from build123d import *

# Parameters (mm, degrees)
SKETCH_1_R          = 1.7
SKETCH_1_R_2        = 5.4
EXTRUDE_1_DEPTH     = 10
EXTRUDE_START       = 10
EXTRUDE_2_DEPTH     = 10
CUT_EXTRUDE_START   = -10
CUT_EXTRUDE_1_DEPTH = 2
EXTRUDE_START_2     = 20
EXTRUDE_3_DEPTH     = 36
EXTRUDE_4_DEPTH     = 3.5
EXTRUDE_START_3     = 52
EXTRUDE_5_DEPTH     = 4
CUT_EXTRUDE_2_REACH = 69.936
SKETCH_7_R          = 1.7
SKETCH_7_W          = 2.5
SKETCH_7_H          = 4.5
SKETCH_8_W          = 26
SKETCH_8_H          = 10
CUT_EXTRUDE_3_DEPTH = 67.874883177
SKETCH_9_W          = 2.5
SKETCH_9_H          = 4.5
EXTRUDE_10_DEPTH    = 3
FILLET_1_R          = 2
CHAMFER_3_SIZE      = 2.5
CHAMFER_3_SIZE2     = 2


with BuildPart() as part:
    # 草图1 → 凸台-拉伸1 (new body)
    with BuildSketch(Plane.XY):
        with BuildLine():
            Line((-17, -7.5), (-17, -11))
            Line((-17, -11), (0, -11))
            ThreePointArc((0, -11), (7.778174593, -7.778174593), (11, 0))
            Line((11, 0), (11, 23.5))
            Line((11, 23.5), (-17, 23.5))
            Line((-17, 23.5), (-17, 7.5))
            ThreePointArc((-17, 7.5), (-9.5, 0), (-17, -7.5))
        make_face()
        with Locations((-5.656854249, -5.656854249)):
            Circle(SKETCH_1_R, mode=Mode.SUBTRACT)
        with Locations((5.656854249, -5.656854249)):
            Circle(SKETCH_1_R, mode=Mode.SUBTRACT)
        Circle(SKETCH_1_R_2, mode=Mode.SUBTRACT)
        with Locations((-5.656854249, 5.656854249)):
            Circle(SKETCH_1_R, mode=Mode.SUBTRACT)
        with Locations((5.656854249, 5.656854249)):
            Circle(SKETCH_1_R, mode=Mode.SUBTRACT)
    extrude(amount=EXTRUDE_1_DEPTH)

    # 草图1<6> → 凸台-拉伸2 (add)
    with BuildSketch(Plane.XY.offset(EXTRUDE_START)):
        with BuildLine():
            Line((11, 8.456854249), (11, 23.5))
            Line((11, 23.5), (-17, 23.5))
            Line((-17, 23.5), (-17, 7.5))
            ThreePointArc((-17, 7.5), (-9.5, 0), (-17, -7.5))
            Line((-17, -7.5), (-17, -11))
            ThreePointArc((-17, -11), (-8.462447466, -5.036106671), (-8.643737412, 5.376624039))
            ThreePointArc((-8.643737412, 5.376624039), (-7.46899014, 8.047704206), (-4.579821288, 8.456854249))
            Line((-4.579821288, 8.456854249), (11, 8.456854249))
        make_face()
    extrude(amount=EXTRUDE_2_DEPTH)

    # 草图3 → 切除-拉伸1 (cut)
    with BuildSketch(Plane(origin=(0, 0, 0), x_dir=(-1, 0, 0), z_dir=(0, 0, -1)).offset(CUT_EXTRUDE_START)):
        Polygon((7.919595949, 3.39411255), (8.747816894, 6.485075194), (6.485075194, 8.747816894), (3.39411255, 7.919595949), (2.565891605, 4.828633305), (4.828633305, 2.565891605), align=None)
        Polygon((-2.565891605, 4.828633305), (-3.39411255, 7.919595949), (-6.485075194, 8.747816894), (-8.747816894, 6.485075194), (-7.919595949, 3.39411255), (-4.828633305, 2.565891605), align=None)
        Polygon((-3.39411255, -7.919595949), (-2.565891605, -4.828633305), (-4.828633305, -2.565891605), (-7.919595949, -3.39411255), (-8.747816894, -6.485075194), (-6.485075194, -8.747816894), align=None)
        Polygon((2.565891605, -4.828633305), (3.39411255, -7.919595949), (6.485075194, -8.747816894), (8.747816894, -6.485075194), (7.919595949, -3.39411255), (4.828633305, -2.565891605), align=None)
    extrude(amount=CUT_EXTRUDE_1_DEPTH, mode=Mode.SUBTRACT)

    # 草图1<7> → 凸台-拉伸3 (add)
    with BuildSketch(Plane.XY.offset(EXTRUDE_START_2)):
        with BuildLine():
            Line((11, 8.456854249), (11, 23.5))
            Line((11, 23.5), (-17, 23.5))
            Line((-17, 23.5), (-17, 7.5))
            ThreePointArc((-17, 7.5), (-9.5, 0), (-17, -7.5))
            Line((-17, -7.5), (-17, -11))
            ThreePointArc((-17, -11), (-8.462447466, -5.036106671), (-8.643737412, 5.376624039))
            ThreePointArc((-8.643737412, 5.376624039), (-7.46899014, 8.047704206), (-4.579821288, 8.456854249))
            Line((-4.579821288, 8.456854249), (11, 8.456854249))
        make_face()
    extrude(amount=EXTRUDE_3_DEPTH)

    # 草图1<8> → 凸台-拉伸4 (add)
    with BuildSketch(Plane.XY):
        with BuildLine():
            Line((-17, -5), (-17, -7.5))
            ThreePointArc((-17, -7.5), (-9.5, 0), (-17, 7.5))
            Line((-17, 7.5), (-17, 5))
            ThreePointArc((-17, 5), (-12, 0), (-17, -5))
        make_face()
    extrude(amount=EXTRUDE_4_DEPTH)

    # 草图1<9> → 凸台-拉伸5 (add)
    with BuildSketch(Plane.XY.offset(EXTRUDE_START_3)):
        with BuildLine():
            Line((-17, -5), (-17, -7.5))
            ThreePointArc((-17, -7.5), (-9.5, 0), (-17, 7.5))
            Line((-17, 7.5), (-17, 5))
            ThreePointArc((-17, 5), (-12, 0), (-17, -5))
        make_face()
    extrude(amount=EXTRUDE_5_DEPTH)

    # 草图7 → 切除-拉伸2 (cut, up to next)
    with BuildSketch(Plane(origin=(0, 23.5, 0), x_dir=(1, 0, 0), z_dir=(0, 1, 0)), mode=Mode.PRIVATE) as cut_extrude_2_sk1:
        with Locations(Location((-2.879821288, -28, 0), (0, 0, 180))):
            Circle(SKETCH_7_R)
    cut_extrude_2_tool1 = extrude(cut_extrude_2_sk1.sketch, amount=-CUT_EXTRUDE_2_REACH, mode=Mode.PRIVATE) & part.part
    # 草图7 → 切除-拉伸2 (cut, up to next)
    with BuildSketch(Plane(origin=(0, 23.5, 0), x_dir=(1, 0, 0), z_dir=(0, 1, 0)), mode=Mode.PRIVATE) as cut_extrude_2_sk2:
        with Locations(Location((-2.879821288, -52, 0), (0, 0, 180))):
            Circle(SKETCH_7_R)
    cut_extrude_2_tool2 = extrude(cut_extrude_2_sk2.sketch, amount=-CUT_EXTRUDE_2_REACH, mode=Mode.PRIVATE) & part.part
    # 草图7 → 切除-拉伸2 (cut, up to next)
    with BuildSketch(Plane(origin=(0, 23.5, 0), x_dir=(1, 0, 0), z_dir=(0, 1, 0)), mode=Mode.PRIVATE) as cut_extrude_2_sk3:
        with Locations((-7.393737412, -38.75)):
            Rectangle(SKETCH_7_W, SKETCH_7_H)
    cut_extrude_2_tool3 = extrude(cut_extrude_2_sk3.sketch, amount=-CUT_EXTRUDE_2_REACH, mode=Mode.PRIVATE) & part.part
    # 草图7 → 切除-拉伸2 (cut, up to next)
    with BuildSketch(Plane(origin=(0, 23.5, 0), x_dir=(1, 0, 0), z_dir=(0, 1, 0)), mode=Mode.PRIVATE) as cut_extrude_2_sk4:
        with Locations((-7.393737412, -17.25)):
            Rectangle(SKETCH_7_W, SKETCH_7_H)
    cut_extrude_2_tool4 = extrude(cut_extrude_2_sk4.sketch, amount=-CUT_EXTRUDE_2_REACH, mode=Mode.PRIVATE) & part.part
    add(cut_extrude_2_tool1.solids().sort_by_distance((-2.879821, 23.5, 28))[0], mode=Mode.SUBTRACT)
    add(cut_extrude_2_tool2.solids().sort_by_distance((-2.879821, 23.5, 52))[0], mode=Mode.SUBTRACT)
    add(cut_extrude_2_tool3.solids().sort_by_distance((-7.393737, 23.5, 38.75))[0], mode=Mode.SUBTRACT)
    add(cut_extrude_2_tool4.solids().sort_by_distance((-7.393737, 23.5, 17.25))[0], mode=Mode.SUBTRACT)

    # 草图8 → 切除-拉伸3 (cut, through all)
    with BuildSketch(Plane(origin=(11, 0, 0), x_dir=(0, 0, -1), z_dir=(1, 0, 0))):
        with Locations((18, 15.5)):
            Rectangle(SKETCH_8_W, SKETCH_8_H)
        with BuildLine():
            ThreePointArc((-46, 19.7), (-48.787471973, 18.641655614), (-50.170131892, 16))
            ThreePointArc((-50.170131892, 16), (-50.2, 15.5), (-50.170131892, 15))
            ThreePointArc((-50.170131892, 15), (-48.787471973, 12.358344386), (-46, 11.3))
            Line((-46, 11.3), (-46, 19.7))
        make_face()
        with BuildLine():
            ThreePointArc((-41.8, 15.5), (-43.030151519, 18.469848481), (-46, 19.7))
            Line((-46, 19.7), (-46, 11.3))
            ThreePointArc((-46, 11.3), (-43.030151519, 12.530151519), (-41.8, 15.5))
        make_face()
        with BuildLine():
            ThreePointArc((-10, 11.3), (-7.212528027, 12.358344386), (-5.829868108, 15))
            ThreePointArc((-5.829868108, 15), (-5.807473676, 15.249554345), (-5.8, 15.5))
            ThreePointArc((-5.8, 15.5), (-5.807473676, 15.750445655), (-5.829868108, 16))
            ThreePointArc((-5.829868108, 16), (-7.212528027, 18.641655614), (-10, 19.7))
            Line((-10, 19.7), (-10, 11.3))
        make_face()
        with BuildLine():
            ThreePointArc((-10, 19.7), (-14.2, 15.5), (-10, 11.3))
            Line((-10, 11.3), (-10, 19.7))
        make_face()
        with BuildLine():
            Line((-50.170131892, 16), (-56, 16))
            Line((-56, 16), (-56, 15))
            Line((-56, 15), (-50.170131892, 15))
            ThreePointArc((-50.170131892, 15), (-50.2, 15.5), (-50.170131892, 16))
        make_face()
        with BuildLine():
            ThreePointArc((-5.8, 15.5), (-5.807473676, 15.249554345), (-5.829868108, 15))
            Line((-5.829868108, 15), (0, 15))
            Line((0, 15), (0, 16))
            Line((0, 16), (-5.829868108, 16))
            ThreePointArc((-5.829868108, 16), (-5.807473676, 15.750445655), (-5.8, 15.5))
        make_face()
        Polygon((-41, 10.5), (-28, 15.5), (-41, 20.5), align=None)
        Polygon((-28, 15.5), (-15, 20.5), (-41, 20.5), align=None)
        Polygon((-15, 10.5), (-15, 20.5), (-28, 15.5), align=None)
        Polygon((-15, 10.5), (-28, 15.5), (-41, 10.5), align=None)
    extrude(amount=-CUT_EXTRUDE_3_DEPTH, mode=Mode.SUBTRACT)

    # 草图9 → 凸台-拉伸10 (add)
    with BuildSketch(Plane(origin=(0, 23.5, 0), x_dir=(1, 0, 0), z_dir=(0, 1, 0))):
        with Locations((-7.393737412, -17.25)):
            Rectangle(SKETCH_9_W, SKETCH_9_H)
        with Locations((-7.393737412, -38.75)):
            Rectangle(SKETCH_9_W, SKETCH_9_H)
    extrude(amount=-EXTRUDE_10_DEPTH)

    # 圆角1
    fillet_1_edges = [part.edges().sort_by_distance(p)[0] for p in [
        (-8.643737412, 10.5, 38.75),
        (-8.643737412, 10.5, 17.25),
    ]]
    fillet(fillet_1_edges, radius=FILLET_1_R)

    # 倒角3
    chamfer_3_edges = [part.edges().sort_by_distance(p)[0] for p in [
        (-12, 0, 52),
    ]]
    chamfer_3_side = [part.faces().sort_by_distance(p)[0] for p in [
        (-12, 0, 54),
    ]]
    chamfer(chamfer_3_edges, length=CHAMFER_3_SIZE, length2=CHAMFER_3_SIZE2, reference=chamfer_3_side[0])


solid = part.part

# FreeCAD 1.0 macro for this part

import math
import FreeCAD as App
import Part
import Sketcher
from FreeCAD import Vector
Q = App.Units.Quantity


def edges_at(feature, points):
    """Names of the edges that pass closest to the given points."""
    edges = feature.Shape.Edges
    near = lambda p: min(range(len(edges)), key=lambda i: edges[i].distToShape(Part.Vertex(*p))[0])
    return sorted({f"Edge{near(p) + 1}" for p in points})

doc = App.newDocument("Part")
body = doc.addObject("PartDesign::Body", "Body")

# Sketch on XY plane
sketch1 = doc.addObject("Sketcher::SketchObject", "Sketch")
body.addObject(sketch1)
sketch1.AttachmentSupport = (doc.XY_Plane, [""])
sketch1.MapMode = "FlatFace"
sketch1.addGeometry([
    Part.LineSegment(Vector(-17, -7.5, 0), Vector(-17, -11, 0)),  # 0
    Part.LineSegment(Vector(-17, -11, 0), Vector(0, -11, 0)),  # 1
    Part.ArcOfCircle(Part.Circle(Vector(0, 0, 0), Vector(0, 0, 1), 11), math.radians(-90), math.radians(0)),  # 2
    Part.LineSegment(Vector(11, 0, 0), Vector(11, 23.5, 0)),  # 3
    Part.LineSegment(Vector(11, 23.5, 0), Vector(-17, 23.5, 0)),  # 4
    Part.LineSegment(Vector(-17, 23.5, 0), Vector(-17, 7.5, 0)),  # 5
    Part.ArcOfCircle(Part.Circle(Vector(-17, 0, 0), Vector(0, 0, 1), 7.5), math.radians(-90), math.radians(90)),  # 6
    Part.Circle(Vector(-5.7, -5.7, 0), Vector(0, 0, 1), 1.7),  # 7
    Part.Circle(Vector(5.7, -5.7, 0), Vector(0, 0, 1), 1.7),  # 8
    Part.Circle(Vector(0, 0, 0), Vector(0, 0, 1), 5.4),  # 9
    Part.Circle(Vector(-5.7, 5.7, 0), Vector(0, 0, 1), 1.7),  # 10
    Part.Circle(Vector(5.7, 5.7, 0), Vector(0, 0, 1), 1.7),  # 11
], False)
sketch1.addConstraint([
    Sketcher.Constraint("Coincident", 0, 2, 1, 1),
    Sketcher.Constraint("Tangent", 1, 2, 2, 1),
    Sketcher.Constraint("Tangent", 2, 2, 3, 1),
    Sketcher.Constraint("Coincident", 3, 2, 4, 1),
    Sketcher.Constraint("Coincident", 4, 2, 5, 1),
    Sketcher.Constraint("Coincident", 5, 2, 6, 2),
    Sketcher.Constraint("Coincident", 6, 1, 0, 1),
    Sketcher.Constraint("Vertical", 0),
    Sketcher.Constraint("Horizontal", 1),
    Sketcher.Constraint("Vertical", 3),
    Sketcher.Constraint("Horizontal", 4),
    Sketcher.Constraint("Vertical", 5),
    Sketcher.Constraint("Coincident", 2, 3, -1, 1),
    Sketcher.Constraint("Coincident", 9, 3, -1, 1),
    Sketcher.Constraint("Equal", 7, 8),
    Sketcher.Constraint("Equal", 8, 10),
    Sketcher.Constraint("Equal", 10, 11),
    Sketcher.Constraint("Symmetric", 8, 3, 10, 3, -1, 1),
    Sketcher.Constraint("Symmetric", 7, 3, 11, 3, -1, 1),
    Sketcher.Constraint("Symmetric", 7, 3, 8, 3, -2),
    Sketcher.Constraint("Symmetric", 5, 2, 6, 1, -1),
    Sketcher.Constraint("Vertical", 6, 3, 0, 2),
    Sketcher.Constraint("Radius", 2, Q("11 mm")),
    Sketcher.Constraint("Diameter", 7, Q("3.4 mm")),
    Sketcher.Constraint("Diameter", 9, Q("10.8 mm")),
    Sketcher.Constraint("Radius", 6, Q("7.5 mm")),
    Sketcher.Constraint("DistanceX", 1, 1, 1, 2, Q("17 mm")),
    Sketcher.Constraint("DistanceY", 5, 2, 5, 1, Q("16 mm")),
    Sketcher.Constraint("DistanceX", 7, 3, 8, 3, Q("11.313708 mm")),
    Sketcher.Constraint("DistanceY", 7, 3, 10, 3, Q("11.313708 mm")),
])
pad1 = doc.addObject("PartDesign::Pad", "Pad")
body.addObject(pad1)
pad1.Profile = sketch1
pad1.Length = 10

# Sketch on XY plane
sketch2 = doc.addObject("Sketcher::SketchObject", "Sketch001")
body.addObject(sketch2)
sketch2.AttachmentSupport = (doc.XY_Plane, [""])
sketch2.MapMode = "FlatFace"
sketch2.AttachmentOffset = App.Placement(Vector(0, 0, 10), App.Rotation())
sketch2.addGeometry([
    Part.LineSegment(Vector(11, 8.5, 0), Vector(11, 23.5, 0)),  # 0
    Part.LineSegment(Vector(11, 23.5, 0), Vector(-17, 23.5, 0)),  # 1
    Part.LineSegment(Vector(-17, 23.5, 0), Vector(-17, 7.5, 0)),  # 2
    Part.ArcOfCircle(Part.Circle(Vector(-17, 0, 0), Vector(0, 0, 1), 7.5), math.radians(-90), math.radians(90)),  # 3
    Part.LineSegment(Vector(-17, -7.5, 0), Vector(-17, -11, 0)),  # 4
    Part.ArcOfCircle(Part.Circle(Vector(-18.3, 0, 0), Vector(0, 0, 1), 11.1), math.radians(-83), math.radians(29)),  # 5
    Part.ArcOfCircle(Part.Circle(Vector(-5.7, 5.7, 0), Vector(0, 0, 1), 3), math.radians(69), math.radians(185)),  # 6
    Part.LineSegment(Vector(-4.6, 8.5, 0), Vector(11, 8.5, 0)),  # 7
], False)
sketch2.addConstraint([
    Sketcher.Constraint("Coincident", 0, 2, 1, 1),
    Sketcher.Constraint("Coincident", 1, 2, 2, 1),
    Sketcher.Constraint("Coincident", 2, 2, 3, 2),
    Sketcher.Constraint("Coincident", 3, 1, 4, 1),
    Sketcher.Constraint("Coincident", 4, 2, 5, 1),
    Sketcher.Constraint("Coincident", 5, 2, 6, 2),
    Sketcher.Constraint("Coincident", 6, 1, 7, 1),
    Sketcher.Constraint("Coincident", 7, 2, 0, 1),
    Sketcher.Constraint("Vertical", 0),
    Sketcher.Constraint("Horizontal", 1),
    Sketcher.Constraint("Vertical", 2),
    Sketcher.Constraint("Vertical", 4),
    Sketcher.Constraint("Horizontal", 7),
    Sketcher.Constraint("Symmetric", 2, 2, 3, 1, -1),
    Sketcher.Constraint("PointOnObject", 5, 3, -1),
    Sketcher.Constraint("Vertical", 3, 3, 1, 2),
    Sketcher.Constraint("Radius", 6, Q("3 mm")),
    Sketcher.Constraint("Radius", 3, Q("7.5 mm")),
    Sketcher.Constraint("DistanceX", 1, 2, 1, 1, Q("28 mm")),
    Sketcher.Constraint("DistanceY", 2, 2, 2, 1, Q("16 mm")),
    Sketcher.Constraint("DistanceY", 4, 2, 4, 1, Q("3.5 mm")),
    Sketcher.Constraint("DistanceX", 3, 3, -1, 1, Q("17 mm")),
    Sketcher.Constraint("DistanceY", 6, 3, 6, 1, Q("2.8 mm")),
    Sketcher.Constraint("Radius", 5, Q("11.08038 mm")),
    Sketcher.Constraint("DistanceX", 7, 1, 7, 2, Q("15.579821 mm")),
    Sketcher.Constraint("DistanceY", 0, 1, 0, 2, Q("15.043146 mm")),
])
pad2 = doc.addObject("PartDesign::Pad", "Pad001")
body.addObject(pad2)
pad2.Profile = sketch2
pad2.Length = 10

# Sketch on XY plane
sketch3 = doc.addObject("Sketcher::SketchObject", "Sketch002")
body.addObject(sketch3)
sketch3.AttachmentSupport = (doc.XY_Plane, [""])
sketch3.MapMode = "FlatFace"
sketch3.AttachmentOffset = App.Placement(Vector(0, 0, 10), App.Rotation())
sketch3.addGeometry([
    Part.LineSegment(Vector(-7.9, 3.4, 0), Vector(-8.7, 6.5, 0)),  # 0
    Part.LineSegment(Vector(-8.7, 6.5, 0), Vector(-6.5, 8.7, 0)),  # 1
    Part.LineSegment(Vector(-6.5, 8.7, 0), Vector(-3.4, 7.9, 0)),  # 2
    Part.LineSegment(Vector(-3.4, 7.9, 0), Vector(-2.6, 4.8, 0)),  # 3
    Part.LineSegment(Vector(-2.6, 4.8, 0), Vector(-4.8, 2.6, 0)),  # 4
    Part.LineSegment(Vector(-4.8, 2.6, 0), Vector(-7.9, 3.4, 0)),  # 5
    Part.LineSegment(Vector(2.6, 4.8, 0), Vector(3.4, 7.9, 0)),  # 6
    Part.LineSegment(Vector(3.4, 7.9, 0), Vector(6.5, 8.7, 0)),  # 7
    Part.LineSegment(Vector(6.5, 8.7, 0), Vector(8.7, 6.5, 0)),  # 8
    Part.LineSegment(Vector(8.7, 6.5, 0), Vector(7.9, 3.4, 0)),  # 9
    Part.LineSegment(Vector(7.9, 3.4, 0), Vector(4.8, 2.6, 0)),  # 10
    Part.LineSegment(Vector(4.8, 2.6, 0), Vector(2.6, 4.8, 0)),  # 11
    Part.LineSegment(Vector(3.4, -7.9, 0), Vector(2.6, -4.8, 0)),  # 12
    Part.LineSegment(Vector(2.6, -4.8, 0), Vector(4.8, -2.6, 0)),  # 13
    Part.LineSegment(Vector(4.8, -2.6, 0), Vector(7.9, -3.4, 0)),  # 14
    Part.LineSegment(Vector(7.9, -3.4, 0), Vector(8.7, -6.5, 0)),  # 15
    Part.LineSegment(Vector(8.7, -6.5, 0), Vector(6.5, -8.7, 0)),  # 16
    Part.LineSegment(Vector(6.5, -8.7, 0), Vector(3.4, -7.9, 0)),  # 17
    Part.LineSegment(Vector(-2.6, -4.8, 0), Vector(-3.4, -7.9, 0)),  # 18
    Part.LineSegment(Vector(-3.4, -7.9, 0), Vector(-6.5, -8.7, 0)),  # 19
    Part.LineSegment(Vector(-6.5, -8.7, 0), Vector(-8.7, -6.5, 0)),  # 20
    Part.LineSegment(Vector(-8.7, -6.5, 0), Vector(-7.9, -3.4, 0)),  # 21
    Part.LineSegment(Vector(-7.9, -3.4, 0), Vector(-4.8, -2.6, 0)),  # 22
    Part.LineSegment(Vector(-4.8, -2.6, 0), Vector(-2.6, -4.8, 0)),  # 23
], False)
sketch3.addConstraint([
    Sketcher.Constraint("Coincident", 0, 2, 1, 1),
    Sketcher.Constraint("Coincident", 1, 2, 2, 1),
    Sketcher.Constraint("Coincident", 2, 2, 3, 1),
    Sketcher.Constraint("Coincident", 3, 2, 4, 1),
    Sketcher.Constraint("Coincident", 4, 2, 5, 1),
    Sketcher.Constraint("Coincident", 5, 2, 0, 1),
    Sketcher.Constraint("Coincident", 6, 2, 7, 1),
    Sketcher.Constraint("Coincident", 7, 2, 8, 1),
    Sketcher.Constraint("Coincident", 8, 2, 9, 1),
    Sketcher.Constraint("Coincident", 9, 2, 10, 1),
    Sketcher.Constraint("Coincident", 10, 2, 11, 1),
    Sketcher.Constraint("Coincident", 11, 2, 6, 1),
    Sketcher.Constraint("Coincident", 12, 2, 13, 1),
    Sketcher.Constraint("Coincident", 13, 2, 14, 1),
    Sketcher.Constraint("Coincident", 14, 2, 15, 1),
    Sketcher.Constraint("Coincident", 15, 2, 16, 1),
    Sketcher.Constraint("Coincident", 16, 2, 17, 1),
    Sketcher.Constraint("Coincident", 17, 2, 12, 1),
    Sketcher.Constraint("Coincident", 18, 2, 19, 1),
    Sketcher.Constraint("Coincident", 19, 2, 20, 1),
    Sketcher.Constraint("Coincident", 20, 2, 21, 1),
    Sketcher.Constraint("Coincident", 21, 2, 22, 1),
    Sketcher.Constraint("Coincident", 22, 2, 23, 1),
    Sketcher.Constraint("Coincident", 23, 2, 18, 1),
    Sketcher.Constraint("Symmetric", 3, 2, 12, 2, -1, 1),
    Sketcher.Constraint("Symmetric", 4, 2, 13, 2, -1, 1),
    Sketcher.Constraint("Symmetric", 5, 2, 14, 2, -1, 1),
    Sketcher.Constraint("Symmetric", 0, 2, 15, 2, -1, 1),
    Sketcher.Constraint("Symmetric", 1, 2, 16, 2, -1, 1),
    Sketcher.Constraint("Symmetric", 2, 2, 17, 2, -1, 1),
    Sketcher.Constraint("Symmetric", 6, 2, 18, 2, -1, 1),
    Sketcher.Constraint("Symmetric", 7, 2, 19, 2, -1, 1),
    Sketcher.Constraint("Symmetric", 8, 2, 20, 2, -1, 1),
    Sketcher.Constraint("Symmetric", 9, 2, 21, 2, -1, 1),
    Sketcher.Constraint("Symmetric", 10, 2, 22, 2, -1, 1),
    Sketcher.Constraint("Symmetric", 11, 2, 23, 2, -1, 1),
    Sketcher.Constraint("Symmetric", 2, 2, 6, 2, -2),
    Sketcher.Constraint("Symmetric", 1, 2, 7, 2, -2),
    Sketcher.Constraint("Symmetric", 0, 2, 8, 2, -2),
    Sketcher.Constraint("Symmetric", 5, 2, 9, 2, -2),
    Sketcher.Constraint("Symmetric", 4, 2, 10, 2, -2),
    Sketcher.Constraint("Symmetric", 3, 2, 11, 2, -2),
    Sketcher.Constraint("Parallel", 0, 3),
    Sketcher.Constraint("Parallel", 1, 4),
    Sketcher.Constraint("Parallel", 2, 5),
    Sketcher.Constraint("Perpendicular", 5, 6),
    Sketcher.Constraint("Perpendicular", 4, 8),
    Sketcher.Constraint("Equal", 0, 1),
    Sketcher.Constraint("Equal", 1, 2),
    Sketcher.Constraint("Equal", 2, 3),
    Sketcher.Constraint("Angle", 0, Q("105 deg")),
    Sketcher.Constraint("Distance", 0, Q("3.2 mm")),
    Sketcher.Constraint("DistanceX", 3, 2, -1, 1, Q("2.565892 mm")),
    Sketcher.Constraint("DistanceY", -1, 1, 4, 2, Q("2.565892 mm")),
])
pocket1 = doc.addObject("PartDesign::Pocket", "Pocket")
body.addObject(pocket1)
pocket1.Profile = sketch3
pocket1.Length = 2

# Sketch on XY plane
sketch4 = doc.addObject("Sketcher::SketchObject", "Sketch003")
body.addObject(sketch4)
sketch4.AttachmentSupport = (doc.XY_Plane, [""])
sketch4.MapMode = "FlatFace"
sketch4.AttachmentOffset = App.Placement(Vector(0, 0, 20), App.Rotation())
sketch4.addGeometry([
    Part.LineSegment(Vector(11, 8.5, 0), Vector(11, 23.5, 0)),  # 0
    Part.LineSegment(Vector(11, 23.5, 0), Vector(-17, 23.5, 0)),  # 1
    Part.LineSegment(Vector(-17, 23.5, 0), Vector(-17, 7.5, 0)),  # 2
    Part.ArcOfCircle(Part.Circle(Vector(-17, 0, 0), Vector(0, 0, 1), 7.5), math.radians(-90), math.radians(90)),  # 3
    Part.LineSegment(Vector(-17, -7.5, 0), Vector(-17, -11, 0)),  # 4
    Part.ArcOfCircle(Part.Circle(Vector(-18.3, 0, 0), Vector(0, 0, 1), 11.1), math.radians(-83), math.radians(29)),  # 5
    Part.ArcOfCircle(Part.Circle(Vector(-5.7, 5.7, 0), Vector(0, 0, 1), 3), math.radians(69), math.radians(185)),  # 6
    Part.LineSegment(Vector(-4.6, 8.5, 0), Vector(11, 8.5, 0)),  # 7
], False)
sketch4.addConstraint([
    Sketcher.Constraint("Coincident", 0, 2, 1, 1),
    Sketcher.Constraint("Coincident", 1, 2, 2, 1),
    Sketcher.Constraint("Coincident", 2, 2, 3, 2),
    Sketcher.Constraint("Coincident", 3, 1, 4, 1),
    Sketcher.Constraint("Coincident", 4, 2, 5, 1),
    Sketcher.Constraint("Coincident", 5, 2, 6, 2),
    Sketcher.Constraint("Coincident", 6, 1, 7, 1),
    Sketcher.Constraint("Coincident", 7, 2, 0, 1),
    Sketcher.Constraint("Vertical", 0),
    Sketcher.Constraint("Horizontal", 1),
    Sketcher.Constraint("Vertical", 2),
    Sketcher.Constraint("Vertical", 4),
    Sketcher.Constraint("Horizontal", 7),
    Sketcher.Constraint("Symmetric", 2, 2, 3, 1, -1),
    Sketcher.Constraint("PointOnObject", 5, 3, -1),
    Sketcher.Constraint("Vertical", 3, 3, 1, 2),
    Sketcher.Constraint("Radius", 6, Q("3 mm")),
    Sketcher.Constraint("Radius", 3, Q("7.5 mm")),
    Sketcher.Constraint("DistanceX", 1, 2, 1, 1, Q("28 mm")),
    Sketcher.Constraint("DistanceY", 2, 2, 2, 1, Q("16 mm")),
    Sketcher.Constraint("DistanceY", 4, 2, 4, 1, Q("3.5 mm")),
    Sketcher.Constraint("DistanceX", 3, 3, -1, 1, Q("17 mm")),
    Sketcher.Constraint("DistanceY", 6, 3, 6, 1, Q("2.8 mm")),
    Sketcher.Constraint("Radius", 5, Q("11.08038 mm")),
    Sketcher.Constraint("DistanceX", 7, 1, 7, 2, Q("15.579821 mm")),
    Sketcher.Constraint("DistanceY", 0, 1, 0, 2, Q("15.043146 mm")),
])
pad3 = doc.addObject("PartDesign::Pad", "Pad002")
body.addObject(pad3)
pad3.Profile = sketch4
pad3.Length = 36

# Sketch on XY plane
sketch5 = doc.addObject("Sketcher::SketchObject", "Sketch004")
body.addObject(sketch5)
sketch5.AttachmentSupport = (doc.XY_Plane, [""])
sketch5.MapMode = "FlatFace"
sketch5.addGeometry([
    Part.LineSegment(Vector(-17, -5, 0), Vector(-17, -7.5, 0)),
    Part.ArcOfCircle(Part.Circle(Vector(-17, 0, 0), Vector(0, 0, 1), 7.5), math.radians(-90), math.radians(90)),
    Part.LineSegment(Vector(-17, 7.5, 0), Vector(-17, 5, 0)),
    Part.ArcOfCircle(Part.Circle(Vector(-17, 0, 0), Vector(0, 0, 1), 5), math.radians(-90), math.radians(90)),
], False)
sketch5.addConstraint([
    Sketcher.Constraint("Coincident", 0, 2, 1, 1),
    Sketcher.Constraint("Coincident", 1, 2, 2, 1),
    Sketcher.Constraint("Coincident", 2, 2, 3, 2),
    Sketcher.Constraint("Coincident", 3, 1, 0, 1),
    Sketcher.Constraint("Vertical", 0),
    Sketcher.Constraint("Vertical", 2),
    Sketcher.Constraint("Coincident", 3, 3, 1, 3),
    Sketcher.Constraint("Symmetric", 0, 2, 1, 2, -1),
    Sketcher.Constraint("Vertical", 3, 3, 0, 2),
    Sketcher.Constraint("Radius", 3, Q("5 mm")),
    Sketcher.Constraint("Radius", 1, Q("7.5 mm")),
    Sketcher.Constraint("DistanceX", 1, 3, -1, 1, Q("17 mm")),
])
pad4 = doc.addObject("PartDesign::Pad", "Pad003")
body.addObject(pad4)
pad4.Profile = sketch5
pad4.Length = 3.5

# Sketch on XY plane
sketch6 = doc.addObject("Sketcher::SketchObject", "Sketch005")
body.addObject(sketch6)
sketch6.AttachmentSupport = (doc.XY_Plane, [""])
sketch6.MapMode = "FlatFace"
sketch6.AttachmentOffset = App.Placement(Vector(0, 0, 52), App.Rotation())
sketch6.addGeometry([
    Part.LineSegment(Vector(-17, -5, 0), Vector(-17, -7.5, 0)),
    Part.ArcOfCircle(Part.Circle(Vector(-17, 0, 0), Vector(0, 0, 1), 7.5), math.radians(-90), math.radians(90)),
    Part.LineSegment(Vector(-17, 7.5, 0), Vector(-17, 5, 0)),
    Part.ArcOfCircle(Part.Circle(Vector(-17, 0, 0), Vector(0, 0, 1), 5), math.radians(-90), math.radians(90)),
], False)
sketch6.addConstraint([
    Sketcher.Constraint("Coincident", 0, 2, 1, 1),
    Sketcher.Constraint("Coincident", 1, 2, 2, 1),
    Sketcher.Constraint("Coincident", 2, 2, 3, 2),
    Sketcher.Constraint("Coincident", 3, 1, 0, 1),
    Sketcher.Constraint("Vertical", 0),
    Sketcher.Constraint("Vertical", 2),
    Sketcher.Constraint("Coincident", 3, 3, 1, 3),
    Sketcher.Constraint("Symmetric", 0, 2, 1, 2, -1),
    Sketcher.Constraint("Vertical", 3, 3, 0, 2),
    Sketcher.Constraint("Radius", 3, Q("5 mm")),
    Sketcher.Constraint("Radius", 1, Q("7.5 mm")),
    Sketcher.Constraint("DistanceX", 1, 3, -1, 1, Q("17 mm")),
])
pad5 = doc.addObject("PartDesign::Pad", "Pad004")
body.addObject(pad5)
pad5.Profile = sketch6
pad5.Length = 4

# Sketch on XZ plane
sketch7 = doc.addObject("Sketcher::SketchObject", "Sketch006")
body.addObject(sketch7)
sketch7.AttachmentSupport = (doc.XZ_Plane, [""])
sketch7.MapMode = "FlatFace"
sketch7.AttachmentOffset = App.Placement(Vector(0, 0, -23.5), App.Rotation())
sketch7.addGeometry(Part.Circle(Vector(-2.9, 28, 0), Vector(0, 0, 1), 1.7), False)
sketch7.addConstraint([
    Sketcher.Constraint("Diameter", 0, Q("3.4 mm")),
    Sketcher.Constraint("DistanceY", -1, 1, 0, 3, Q("28 mm")),
    Sketcher.Constraint("DistanceX", 0, 3, -1, 1, Q("2.879821 mm")),
])
pocket2 = doc.addObject("PartDesign::Pocket", "Pocket001")
body.addObject(pocket2)
pocket2.Profile = sketch7
pocket2.Type = "UpToFirst"
pocket2.Reversed = True

# Sketch on XZ plane
sketch8 = doc.addObject("Sketcher::SketchObject", "Sketch007")
body.addObject(sketch8)
sketch8.AttachmentSupport = (doc.XZ_Plane, [""])
sketch8.MapMode = "FlatFace"
sketch8.AttachmentOffset = App.Placement(Vector(0, 0, -23.5), App.Rotation())
sketch8.addGeometry(Part.Circle(Vector(-2.9, 52, 0), Vector(0, 0, 1), 1.7), False)
sketch8.addConstraint([
    Sketcher.Constraint("Diameter", 0, Q("3.4 mm")),
    Sketcher.Constraint("DistanceY", -1, 1, 0, 3, Q("52 mm")),
    Sketcher.Constraint("DistanceX", 0, 3, -1, 1, Q("2.879821 mm")),
])
pocket3 = doc.addObject("PartDesign::Pocket", "Pocket002")
body.addObject(pocket3)
pocket3.Profile = sketch8
pocket3.Type = "UpToFirst"
pocket3.Reversed = True

# Sketch on XZ plane
sketch9 = doc.addObject("Sketcher::SketchObject", "Sketch008")
body.addObject(sketch9)
sketch9.AttachmentSupport = (doc.XZ_Plane, [""])
sketch9.MapMode = "FlatFace"
sketch9.AttachmentOffset = App.Placement(Vector(0, 0, -23.5), App.Rotation())
sketch9.addGeometry([
    Part.LineSegment(Vector(-8.6, 36.5, 0), Vector(-8.6, 41, 0)),
    Part.LineSegment(Vector(-8.6, 41, 0), Vector(-6.1, 41, 0)),
    Part.LineSegment(Vector(-6.1, 41, 0), Vector(-6.1, 36.5, 0)),
    Part.LineSegment(Vector(-6.1, 36.5, 0), Vector(-8.6, 36.5, 0)),
], False)
sketch9.addConstraint([
    Sketcher.Constraint("Coincident", 0, 2, 1, 1),
    Sketcher.Constraint("Coincident", 1, 2, 2, 1),
    Sketcher.Constraint("Coincident", 2, 2, 3, 1),
    Sketcher.Constraint("Coincident", 3, 2, 0, 1),
    Sketcher.Constraint("Vertical", 0),
    Sketcher.Constraint("Horizontal", 1),
    Sketcher.Constraint("Vertical", 2),
    Sketcher.Constraint("Horizontal", 3),
    Sketcher.Constraint("DistanceX", 1, 1, 1, 2, Q("2.5 mm")),
    Sketcher.Constraint("DistanceY", 0, 1, 0, 2, Q("4.5 mm")),
    Sketcher.Constraint("DistanceY", -1, 1, 0, 2, Q("41 mm")),
    Sketcher.Constraint("DistanceX", 0, 2, -1, 1, Q("8.643737 mm")),
])
pocket4 = doc.addObject("PartDesign::Pocket", "Pocket003")
body.addObject(pocket4)
pocket4.Profile = sketch9
pocket4.Type = "UpToFirst"
pocket4.Reversed = True

# Sketch on XZ plane
sketch10 = doc.addObject("Sketcher::SketchObject", "Sketch009")
body.addObject(sketch10)
sketch10.AttachmentSupport = (doc.XZ_Plane, [""])
sketch10.MapMode = "FlatFace"
sketch10.AttachmentOffset = App.Placement(Vector(0, 0, -23.5), App.Rotation())
sketch10.addGeometry([
    Part.LineSegment(Vector(-8.6, 15, 0), Vector(-8.6, 19.5, 0)),
    Part.LineSegment(Vector(-8.6, 19.5, 0), Vector(-6.1, 19.5, 0)),
    Part.LineSegment(Vector(-6.1, 19.5, 0), Vector(-6.1, 15, 0)),
    Part.LineSegment(Vector(-6.1, 15, 0), Vector(-8.6, 15, 0)),
], False)
sketch10.addConstraint([
    Sketcher.Constraint("Coincident", 0, 2, 1, 1),
    Sketcher.Constraint("Coincident", 1, 2, 2, 1),
    Sketcher.Constraint("Coincident", 2, 2, 3, 1),
    Sketcher.Constraint("Coincident", 3, 2, 0, 1),
    Sketcher.Constraint("Vertical", 0),
    Sketcher.Constraint("Horizontal", 1),
    Sketcher.Constraint("Vertical", 2),
    Sketcher.Constraint("Horizontal", 3),
    Sketcher.Constraint("DistanceX", 1, 1, 1, 2, Q("2.5 mm")),
    Sketcher.Constraint("DistanceY", 0, 1, 0, 2, Q("4.5 mm")),
    Sketcher.Constraint("DistanceY", -1, 1, 2, 2, Q("15 mm")),
    Sketcher.Constraint("DistanceX", 0, 2, -1, 1, Q("8.643737 mm")),
])
pocket5 = doc.addObject("PartDesign::Pocket", "Pocket004")
body.addObject(pocket5)
pocket5.Profile = sketch10
pocket5.Type = "UpToFirst"
pocket5.Reversed = True

# Sketch on YZ plane
sketch11 = doc.addObject("Sketcher::SketchObject", "Sketch010")
body.addObject(sketch11)
sketch11.AttachmentSupport = (doc.YZ_Plane, [""])
sketch11.MapMode = "FlatFace"
sketch11.AttachmentOffset = App.Placement(Vector(0, 0, 11), App.Rotation())
sketch11.addGeometry([
    Part.LineSegment(Vector(20.5, -5, 0), Vector(10.5, -5, 0)),  # 0
    Part.LineSegment(Vector(10.5, -5, 0), Vector(10.5, -31, 0)),  # 1
    Part.LineSegment(Vector(10.5, -31, 0), Vector(20.5, -31, 0)),  # 2
    Part.LineSegment(Vector(20.5, -31, 0), Vector(20.5, -5, 0)),  # 3
    Part.ArcOfCircle(Part.Circle(Vector(15.5, 46, 0), Vector(0, 0, 1), 4.2), math.radians(97), math.radians(180)),  # 4
    Part.ArcOfCircle(Part.Circle(Vector(15.5, 46, 0), Vector(0, 0, 1), 4.2), math.radians(180), math.radians(270)),  # 5
    Part.ArcOfCircle(Part.Circle(Vector(15.5, 46, 0), Vector(0, 0, 1), 4.2), math.radians(-90), math.radians(0)),  # 6
    Part.ArcOfCircle(Part.Circle(Vector(15.5, 46, 0), Vector(0, 0, 1), 4.2), math.radians(0), math.radians(83)),  # 7
    Part.LineSegment(Vector(16, 50.2, 0), Vector(16, 56, 0)),  # 8
    Part.LineSegment(Vector(16, 56, 0), Vector(15, 56, 0)),  # 9
    Part.LineSegment(Vector(15, 56, 0), Vector(15, 50.2, 0)),  # 10
    Part.ArcOfCircle(Part.Circle(Vector(15.5, 10, 0), Vector(0, 0, 1), 4.2), math.radians(-83), math.radians(0)),  # 11
    Part.ArcOfCircle(Part.Circle(Vector(15.5, 10, 0), Vector(0, 0, 1), 4.2), math.radians(0), math.radians(180)),  # 12
    Part.ArcOfCircle(Part.Circle(Vector(15.5, 10, 0), Vector(0, 0, 1), 4.2), math.radians(-180), math.radians(-97)),  # 13
    Part.LineSegment(Vector(15, 5.8, 0), Vector(15, 0, 0)),  # 14
    Part.LineSegment(Vector(15, 0, 0), Vector(16, 0, 0)),  # 15
    Part.LineSegment(Vector(16, 0, 0), Vector(16, 5.8, 0)),  # 16
    Part.LineSegment(Vector(10.5, 15, 0), Vector(20.5, 15, 0)),  # 17
    Part.LineSegment(Vector(20.5, 15, 0), Vector(20.5, 41, 0)),  # 18
    Part.LineSegment(Vector(20.5, 41, 0), Vector(10.5, 41, 0)),  # 19
    Part.LineSegment(Vector(10.5, 41, 0), Vector(10.5, 15, 0)),  # 20
], False)
sketch11.addConstraint([
    Sketcher.Constraint("Coincident", 0, 2, 1, 1),
    Sketcher.Constraint("Coincident", 1, 2, 2, 1),
    Sketcher.Constraint("Coincident", 2, 2, 3, 1),
    Sketcher.Constraint("Coincident", 3, 2, 0, 1),
    Sketcher.Constraint("Tangent", 4, 2, 5, 1),
    Sketcher.Constraint("Tangent", 5, 2, 6, 1),
    Sketcher.Constraint("Tangent", 6, 2, 7, 1),
    Sketcher.Constraint("Coincident", 7, 2, 8, 1),
    Sketcher.Constraint("Coincident", 8, 2, 9, 1),
    Sketcher.Constraint("Coincident", 9, 2, 10, 1),
    Sketcher.Constraint("Coincident", 10, 2, 4, 1),
    Sketcher.Constraint("Tangent", 11, 2, 12, 1),
    Sketcher.Constraint("Tangent", 12, 2, 13, 1),
    Sketcher.Constraint("Coincident", 13, 2, 14, 1),
    Sketcher.Constraint("Coincident", 14, 2, 15, 1),
    Sketcher.Constraint("Coincident", 15, 2, 16, 1),
    Sketcher.Constraint("Coincident", 16, 2, 11, 1),
    Sketcher.Constraint("Coincident", 17, 2, 18, 1),
    Sketcher.Constraint("Coincident", 18, 2, 19, 1),
    Sketcher.Constraint("Coincident", 19, 2, 20, 1),
    Sketcher.Constraint("Coincident", 20, 2, 17, 1),
    Sketcher.Constraint("Horizontal", 0),
    Sketcher.Constraint("Vertical", 1),
    Sketcher.Constraint("Horizontal", 2),
    Sketcher.Constraint("Vertical", 3),
    Sketcher.Constraint("Vertical", 8),
    Sketcher.Constraint("Horizontal", 9),
    Sketcher.Constraint("Vertical", 10),
    Sketcher.Constraint("Vertical", 14),
    Sketcher.Constraint("Horizontal", 15),
    Sketcher.Constraint("Vertical", 16),
    Sketcher.Constraint("Horizontal", 17),
    Sketcher.Constraint("Vertical", 18),
    Sketcher.Constraint("Horizontal", 19),
    Sketcher.Constraint("Vertical", 20),
    Sketcher.Constraint("Coincident", 6, 3, 4, 3),
    Sketcher.Constraint("Equal", 6, 7),
    Sketcher.Constraint("Equal", 7, 11),
    Sketcher.Constraint("Equal", 11, 12),
    Sketcher.Constraint("Equal", 12, 13),
    Sketcher.Constraint("PointOnObject", 14, 2, -1),
    Sketcher.Constraint("Horizontal", 7, 3, 4, 2),
    Sketcher.Constraint("Horizontal", 4, 2, 6, 2),
    Sketcher.Constraint("Horizontal", 7, 2, 10, 2),
    Sketcher.Constraint("Horizontal", 13, 3, 11, 2),
    Sketcher.Constraint("Horizontal", 11, 2, 12, 2),
    Sketcher.Constraint("Horizontal", 13, 2, 16, 2),
    Sketcher.Constraint("Vertical", 7, 3, 11, 3),
    Sketcher.Constraint("Vertical", 13, 3, 5, 2),
    Sketcher.Constraint("Vertical", 10, 2, 13, 2),
    Sketcher.Constraint("Vertical", 3, 2, 17, 2),
    Sketcher.Constraint("Vertical", 1, 2, 19, 2),
    Sketcher.Constraint("Equal", 10, 14),
    Sketcher.Constraint("Equal", 3, 18),
    Sketcher.Constraint("Radius", 4, Q("4.2 mm")),
    Sketcher.Constraint("DistanceX", 0, 2, 0, 1, Q("10 mm")),
    Sketcher.Constraint("DistanceX", 9, 2, 9, 1, Q("1 mm")),
    Sketcher.Constraint("DistanceY", 1, 2, 1, 1, Q("26 mm")),
    Sketcher.Constraint("DistanceY", -1, 1, 4, 3, Q("46 mm")),
    Sketcher.Constraint("DistanceY", -1, 1, 11, 3, Q("10 mm")),
    Sketcher.Constraint("DistanceY", 0, 2, -1, 1, Q("5 mm")),
    Sketcher.Constraint("DistanceX", -1, 1, 7, 2, Q("16 mm")),
    Sketcher.Constraint("DistanceY", -1, 1, 17, 2, Q("15 mm")),
    Sketcher.Constraint("DistanceX", 0, 2, 12, 3, Q("5 mm")),
])
pocket6 = doc.addObject("PartDesign::Pocket", "Pocket005")
body.addObject(pocket6)
pocket6.Profile = sketch11
pocket6.Type = "ThroughAll"

# Sketch on XZ plane
sketch12 = doc.addObject("Sketcher::SketchObject", "Sketch011")
body.addObject(sketch12)
sketch12.AttachmentSupport = (doc.XZ_Plane, [""])
sketch12.MapMode = "FlatFace"
sketch12.AttachmentOffset = App.Placement(Vector(0, 0, -23.5), App.Rotation())
sketch12.addGeometry([
    Part.LineSegment(Vector(-8.6, 15, 0), Vector(-8.6, 19.5, 0)),  # 0
    Part.LineSegment(Vector(-8.6, 19.5, 0), Vector(-6.1, 19.5, 0)),  # 1
    Part.LineSegment(Vector(-6.1, 19.5, 0), Vector(-6.1, 15, 0)),  # 2
    Part.LineSegment(Vector(-6.1, 15, 0), Vector(-8.6, 15, 0)),  # 3
    Part.LineSegment(Vector(-8.6, 36.5, 0), Vector(-8.6, 41, 0)),  # 4
    Part.LineSegment(Vector(-8.6, 41, 0), Vector(-6.1, 41, 0)),  # 5
    Part.LineSegment(Vector(-6.1, 41, 0), Vector(-6.1, 36.5, 0)),  # 6
    Part.LineSegment(Vector(-6.1, 36.5, 0), Vector(-8.6, 36.5, 0)),  # 7
], False)
sketch12.addConstraint([
    Sketcher.Constraint("Coincident", 0, 2, 1, 1),
    Sketcher.Constraint("Coincident", 1, 2, 2, 1),
    Sketcher.Constraint("Coincident", 2, 2, 3, 1),
    Sketcher.Constraint("Coincident", 3, 2, 0, 1),
    Sketcher.Constraint("Coincident", 4, 2, 5, 1),
    Sketcher.Constraint("Coincident", 5, 2, 6, 1),
    Sketcher.Constraint("Coincident", 6, 2, 7, 1),
    Sketcher.Constraint("Coincident", 7, 2, 4, 1),
    Sketcher.Constraint("Vertical", 0),
    Sketcher.Constraint("Horizontal", 1),
    Sketcher.Constraint("Vertical", 2),
    Sketcher.Constraint("Horizontal", 3),
    Sketcher.Constraint("Vertical", 4),
    Sketcher.Constraint("Horizontal", 5),
    Sketcher.Constraint("Vertical", 6),
    Sketcher.Constraint("Horizontal", 7),
    Sketcher.Constraint("Vertical", 3, 2, 4, 2),
    Sketcher.Constraint("Vertical", 2, 2, 5, 2),
    Sketcher.Constraint("Equal", 2, 4),
    Sketcher.Constraint("DistanceX", 1, 1, 1, 2, Q("2.5 mm")),
    Sketcher.Constraint("DistanceY", 0, 1, 0, 2, Q("4.5 mm")),
    Sketcher.Constraint("DistanceY", -1, 1, 2, 2, Q("15 mm")),
    Sketcher.Constraint("DistanceY", -1, 1, 4, 2, Q("41 mm")),
    Sketcher.Constraint("DistanceX", 0, 2, -1, 1, Q("8.643737 mm")),
])
pad6 = doc.addObject("PartDesign::Pad", "Pad005")
body.addObject(pad6)
pad6.Profile = sketch12
pad6.Length = 3
doc.recompute()

fillet = doc.addObject("PartDesign::Fillet", "Fillet")
body.addObject(fillet)
fillet.Base = (pad6, edges_at(pad6, [(-8.644, 10.5, 38.75), (-8.644, 10.5, 17.25)]))
fillet.Radius = 2
doc.recompute()

chamfer = doc.addObject("PartDesign::Chamfer", "Chamfer")
body.addObject(chamfer)
chamfer.Base = (fillet, edges_at(fillet, [(-12, 0, 52)]))
chamfer.ChamferType = "Two distances"
chamfer.Size = 2.5
chamfer.Size2 = 2

doc.recompute()
